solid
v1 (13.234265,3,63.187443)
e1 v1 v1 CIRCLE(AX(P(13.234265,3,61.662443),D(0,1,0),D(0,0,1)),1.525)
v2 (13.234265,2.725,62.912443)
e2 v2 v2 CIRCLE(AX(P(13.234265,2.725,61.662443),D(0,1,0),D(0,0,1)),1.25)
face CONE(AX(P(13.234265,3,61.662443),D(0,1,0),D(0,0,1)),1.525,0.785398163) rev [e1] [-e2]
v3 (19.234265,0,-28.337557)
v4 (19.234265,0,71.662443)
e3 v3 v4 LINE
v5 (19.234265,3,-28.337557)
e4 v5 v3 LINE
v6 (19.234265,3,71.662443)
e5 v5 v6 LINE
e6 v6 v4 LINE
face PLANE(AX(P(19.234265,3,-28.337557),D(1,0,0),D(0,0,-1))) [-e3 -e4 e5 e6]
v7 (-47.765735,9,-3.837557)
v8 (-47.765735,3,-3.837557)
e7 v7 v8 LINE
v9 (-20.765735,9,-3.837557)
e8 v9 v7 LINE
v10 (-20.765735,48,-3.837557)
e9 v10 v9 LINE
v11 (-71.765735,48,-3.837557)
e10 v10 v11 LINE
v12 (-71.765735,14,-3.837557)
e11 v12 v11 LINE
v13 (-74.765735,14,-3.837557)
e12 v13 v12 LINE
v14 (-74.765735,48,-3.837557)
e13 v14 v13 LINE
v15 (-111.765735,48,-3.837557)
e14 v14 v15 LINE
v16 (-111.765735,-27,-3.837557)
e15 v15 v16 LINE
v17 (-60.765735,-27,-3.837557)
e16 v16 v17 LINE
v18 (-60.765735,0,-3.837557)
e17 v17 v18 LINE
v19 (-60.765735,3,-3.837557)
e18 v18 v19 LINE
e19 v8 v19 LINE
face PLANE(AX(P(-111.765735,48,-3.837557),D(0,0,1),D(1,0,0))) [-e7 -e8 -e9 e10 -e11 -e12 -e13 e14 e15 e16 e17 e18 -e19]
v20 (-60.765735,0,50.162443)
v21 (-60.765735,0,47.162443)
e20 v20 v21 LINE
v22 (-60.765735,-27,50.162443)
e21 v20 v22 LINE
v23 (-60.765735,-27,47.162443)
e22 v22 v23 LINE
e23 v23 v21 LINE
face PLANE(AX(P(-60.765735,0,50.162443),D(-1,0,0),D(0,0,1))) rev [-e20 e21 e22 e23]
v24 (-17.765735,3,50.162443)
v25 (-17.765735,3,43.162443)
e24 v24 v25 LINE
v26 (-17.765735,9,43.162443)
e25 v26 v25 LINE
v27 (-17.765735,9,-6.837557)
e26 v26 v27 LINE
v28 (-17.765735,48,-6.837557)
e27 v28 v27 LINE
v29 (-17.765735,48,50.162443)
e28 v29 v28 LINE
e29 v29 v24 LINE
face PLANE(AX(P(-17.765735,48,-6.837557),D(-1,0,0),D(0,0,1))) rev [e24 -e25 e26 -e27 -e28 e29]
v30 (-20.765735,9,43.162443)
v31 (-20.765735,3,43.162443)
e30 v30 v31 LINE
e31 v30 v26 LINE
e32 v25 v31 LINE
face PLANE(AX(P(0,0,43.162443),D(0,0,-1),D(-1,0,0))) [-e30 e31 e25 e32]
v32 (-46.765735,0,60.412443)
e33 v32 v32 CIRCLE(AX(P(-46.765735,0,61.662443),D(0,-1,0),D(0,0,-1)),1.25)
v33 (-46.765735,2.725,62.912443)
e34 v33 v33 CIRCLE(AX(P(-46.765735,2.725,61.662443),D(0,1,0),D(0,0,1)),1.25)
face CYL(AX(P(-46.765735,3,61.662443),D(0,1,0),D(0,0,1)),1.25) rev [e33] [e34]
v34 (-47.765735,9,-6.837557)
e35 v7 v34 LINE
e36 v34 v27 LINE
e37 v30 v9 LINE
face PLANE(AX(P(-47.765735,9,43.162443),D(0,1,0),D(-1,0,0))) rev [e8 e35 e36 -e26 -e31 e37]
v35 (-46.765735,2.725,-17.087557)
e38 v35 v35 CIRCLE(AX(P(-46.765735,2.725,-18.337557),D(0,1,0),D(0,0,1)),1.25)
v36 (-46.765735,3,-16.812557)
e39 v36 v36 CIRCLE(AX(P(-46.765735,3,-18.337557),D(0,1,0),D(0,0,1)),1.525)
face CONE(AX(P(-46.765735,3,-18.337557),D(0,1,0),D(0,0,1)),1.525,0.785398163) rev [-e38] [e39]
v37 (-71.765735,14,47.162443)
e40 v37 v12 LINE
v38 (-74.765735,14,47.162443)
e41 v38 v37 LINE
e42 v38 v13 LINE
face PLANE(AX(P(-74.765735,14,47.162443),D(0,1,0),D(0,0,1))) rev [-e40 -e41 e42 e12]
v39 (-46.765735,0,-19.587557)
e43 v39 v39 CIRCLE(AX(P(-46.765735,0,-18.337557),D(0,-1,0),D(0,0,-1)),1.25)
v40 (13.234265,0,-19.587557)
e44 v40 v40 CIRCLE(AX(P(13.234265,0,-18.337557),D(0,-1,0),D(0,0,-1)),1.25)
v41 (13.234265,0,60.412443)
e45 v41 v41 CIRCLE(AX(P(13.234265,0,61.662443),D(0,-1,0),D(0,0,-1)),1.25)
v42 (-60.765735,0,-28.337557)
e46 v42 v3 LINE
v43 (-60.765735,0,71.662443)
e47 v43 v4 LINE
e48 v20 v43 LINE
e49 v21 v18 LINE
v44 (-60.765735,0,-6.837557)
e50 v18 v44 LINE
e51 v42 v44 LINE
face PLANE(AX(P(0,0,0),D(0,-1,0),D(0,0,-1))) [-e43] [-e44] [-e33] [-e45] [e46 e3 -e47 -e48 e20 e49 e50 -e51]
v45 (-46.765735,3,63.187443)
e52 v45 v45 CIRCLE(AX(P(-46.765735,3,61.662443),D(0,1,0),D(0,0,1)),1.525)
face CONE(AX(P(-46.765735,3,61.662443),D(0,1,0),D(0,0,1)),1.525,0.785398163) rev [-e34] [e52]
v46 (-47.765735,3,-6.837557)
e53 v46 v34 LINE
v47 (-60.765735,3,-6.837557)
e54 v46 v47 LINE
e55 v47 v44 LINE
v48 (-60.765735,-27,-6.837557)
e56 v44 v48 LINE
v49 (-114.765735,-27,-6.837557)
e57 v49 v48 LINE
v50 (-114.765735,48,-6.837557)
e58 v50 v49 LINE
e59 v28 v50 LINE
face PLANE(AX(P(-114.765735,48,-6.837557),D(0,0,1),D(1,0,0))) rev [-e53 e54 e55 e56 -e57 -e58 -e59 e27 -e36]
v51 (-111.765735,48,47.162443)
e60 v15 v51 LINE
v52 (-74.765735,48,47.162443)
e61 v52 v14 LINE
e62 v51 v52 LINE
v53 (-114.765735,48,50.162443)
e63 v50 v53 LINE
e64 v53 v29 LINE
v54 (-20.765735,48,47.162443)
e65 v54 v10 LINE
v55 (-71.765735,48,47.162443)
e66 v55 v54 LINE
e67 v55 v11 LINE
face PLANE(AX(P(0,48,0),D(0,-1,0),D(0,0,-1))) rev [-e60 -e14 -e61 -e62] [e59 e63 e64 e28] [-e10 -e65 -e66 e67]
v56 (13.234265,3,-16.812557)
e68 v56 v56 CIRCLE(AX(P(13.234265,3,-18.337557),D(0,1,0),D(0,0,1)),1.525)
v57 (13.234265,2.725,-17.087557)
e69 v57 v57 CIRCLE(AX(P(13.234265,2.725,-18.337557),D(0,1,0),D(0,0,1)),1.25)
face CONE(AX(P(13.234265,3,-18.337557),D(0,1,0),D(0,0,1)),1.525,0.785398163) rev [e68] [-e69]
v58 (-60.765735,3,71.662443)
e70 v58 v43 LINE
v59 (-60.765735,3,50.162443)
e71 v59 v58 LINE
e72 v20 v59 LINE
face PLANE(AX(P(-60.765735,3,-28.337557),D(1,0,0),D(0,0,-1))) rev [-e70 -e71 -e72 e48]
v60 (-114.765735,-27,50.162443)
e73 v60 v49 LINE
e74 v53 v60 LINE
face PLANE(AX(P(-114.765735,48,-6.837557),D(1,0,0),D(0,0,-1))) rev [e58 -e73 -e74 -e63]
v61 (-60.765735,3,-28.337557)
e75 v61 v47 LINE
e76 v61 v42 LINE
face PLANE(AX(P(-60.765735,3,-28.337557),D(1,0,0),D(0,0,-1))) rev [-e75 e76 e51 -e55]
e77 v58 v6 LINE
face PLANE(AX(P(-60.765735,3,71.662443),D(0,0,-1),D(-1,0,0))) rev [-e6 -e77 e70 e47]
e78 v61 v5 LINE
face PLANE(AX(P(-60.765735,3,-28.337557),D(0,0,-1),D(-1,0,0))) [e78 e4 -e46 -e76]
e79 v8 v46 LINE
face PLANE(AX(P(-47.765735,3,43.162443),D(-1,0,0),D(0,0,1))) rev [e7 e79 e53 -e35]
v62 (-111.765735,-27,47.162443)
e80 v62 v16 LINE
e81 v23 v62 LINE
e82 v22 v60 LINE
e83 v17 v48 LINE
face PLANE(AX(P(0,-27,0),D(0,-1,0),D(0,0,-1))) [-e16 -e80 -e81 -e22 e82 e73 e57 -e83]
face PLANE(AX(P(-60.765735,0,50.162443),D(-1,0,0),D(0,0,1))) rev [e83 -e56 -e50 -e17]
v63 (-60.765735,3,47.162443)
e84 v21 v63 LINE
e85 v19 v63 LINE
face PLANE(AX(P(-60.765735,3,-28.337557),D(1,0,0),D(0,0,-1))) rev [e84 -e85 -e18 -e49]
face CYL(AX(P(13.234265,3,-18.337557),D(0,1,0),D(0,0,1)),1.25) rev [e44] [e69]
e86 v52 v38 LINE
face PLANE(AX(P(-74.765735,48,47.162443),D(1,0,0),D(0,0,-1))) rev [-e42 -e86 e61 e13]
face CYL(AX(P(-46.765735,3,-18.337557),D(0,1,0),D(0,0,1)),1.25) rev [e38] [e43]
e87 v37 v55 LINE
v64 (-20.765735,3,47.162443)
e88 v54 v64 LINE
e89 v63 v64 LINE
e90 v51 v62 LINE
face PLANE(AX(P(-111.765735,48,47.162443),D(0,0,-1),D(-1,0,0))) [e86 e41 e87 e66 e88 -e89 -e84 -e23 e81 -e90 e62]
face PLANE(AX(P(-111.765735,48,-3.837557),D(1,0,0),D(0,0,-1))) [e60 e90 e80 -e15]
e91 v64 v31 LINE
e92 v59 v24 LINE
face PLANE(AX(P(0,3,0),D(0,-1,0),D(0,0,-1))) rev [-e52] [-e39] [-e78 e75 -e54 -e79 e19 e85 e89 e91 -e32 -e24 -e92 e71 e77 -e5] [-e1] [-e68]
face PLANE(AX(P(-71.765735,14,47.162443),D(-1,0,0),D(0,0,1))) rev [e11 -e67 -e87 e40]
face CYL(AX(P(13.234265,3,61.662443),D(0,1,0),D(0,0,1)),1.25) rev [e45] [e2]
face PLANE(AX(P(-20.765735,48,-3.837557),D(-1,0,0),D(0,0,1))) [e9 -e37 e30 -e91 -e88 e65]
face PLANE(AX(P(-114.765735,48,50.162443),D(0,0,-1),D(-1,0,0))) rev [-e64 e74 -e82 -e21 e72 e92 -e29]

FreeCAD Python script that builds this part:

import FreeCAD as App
import Part
import Sketcher
from FreeCAD import Vector
Q = App.Units.Quantity


def add_polygon(sketch, points):
    """Adds a closed chain of lines whose ends are joined by coincident constraints."""
    first, n = sketch.GeometryCount, len(points)
    for a, b in zip(points, points[1:] + points[:1]):
        sketch.addGeometry(Part.LineSegment(App.Vector(*a, 0), App.Vector(*b, 0)), False)
    for i in range(n):
        sketch.addConstraint(Sketcher.Constraint("Coincident", first + i, 2, first + (i + 1) % n, 1))

doc = App.newDocument("Part")
body = doc.addObject("PartDesign::Body", "Body")

sketch1 = body.newObject("Sketcher::SketchObject", "Sketch")
sketch1.AttachmentSupport = (doc.getObject("XZ_Plane"), [""])
sketch1.MapMode = "FlatFace"
add_polygon(sketch1, [(-61, -28), (-61, 72), (19, 72), (19, -28)])
sketch1.addConstraint([
    Sketcher.Constraint("Vertical", 0),
    Sketcher.Constraint("Horizontal", 1),
    Sketcher.Constraint("Vertical", 2),
    Sketcher.Constraint("Horizontal", 3),
    Sketcher.Constraint("DistanceX", 1, 1, 1, 2, Q("80 mm")),
    Sketcher.Constraint("DistanceY", 0, 1, 0, 2, Q("100 mm")),
    Sketcher.Constraint("DistanceX", 0, 2, -1, 1, Q("60.765735 mm")),
    Sketcher.Constraint("DistanceY", -1, 1, 0, 2, Q("71.662443 mm")),
])
pad1 = body.newObject("PartDesign::Pad", "Pad")
pad1.Profile = sketch1
pad1.Length = 3
pad1.Reversed = True

sketch2 = body.newObject("Sketcher::SketchObject", "Sketch001")
sketch2.AttachmentSupport = (doc.getObject("XZ_Plane"), [""])
sketch2.MapMode = "FlatFace"
sketch2.AttachmentOffset = App.Placement(Vector(0, 0, -3), App.Rotation())
add_polygon(sketch2, [(-115, -7), (-115, 50), (-18, 50), (-18, -7)])
add_polygon(sketch2, [(-21, 47), (-112, 47), (-112, -4), (-21, -4)])
sketch2.addConstraint([
    Sketcher.Constraint("Vertical", 0),
    Sketcher.Constraint("Horizontal", 1),
    Sketcher.Constraint("Vertical", 2),
    Sketcher.Constraint("Horizontal", 3),
    Sketcher.Constraint("Horizontal", 4),
    Sketcher.Constraint("Vertical", 5),
    Sketcher.Constraint("Horizontal", 6),
    Sketcher.Constraint("Vertical", 7),
    Sketcher.Constraint("DistanceX", 1, 1, 1, 2, Q("97 mm")),
    Sketcher.Constraint("DistanceX", 4, 2, 4, 1, Q("91 mm")),
    Sketcher.Constraint("DistanceY", 0, 1, 0, 2, Q("57 mm")),
    Sketcher.Constraint("DistanceY", 5, 2, 5, 1, Q("51 mm")),
    Sketcher.Constraint("DistanceX", 0, 2, 4, 2, Q("3 mm")),
    Sketcher.Constraint("DistanceY", 4, 2, 0, 2, Q("3 mm")),
    Sketcher.Constraint("DistanceX", 0, 2, -1, 1, Q("114.765735 mm")),
    Sketcher.Constraint("DistanceY", -1, 1, 0, 2, Q("50.162443 mm")),
])
pad2 = body.newObject("PartDesign::Pad", "Pad001")
pad2.Profile = sketch2
pad2.Length = 45
pad2.Reversed = True

sketch3 = body.newObject("Sketcher::SketchObject", "Sketch002")
sketch3.AttachmentSupport = (doc.getObject("XY_Plane"), [""])
sketch3.MapMode = "FlatFace"
sketch3.AttachmentOffset = App.Placement(Vector(0, 0, -3.837557), App.Rotation())
add_polygon(sketch3, [(-74.8, 48), (-74.8, 14), (-71.8, 14), (-71.8, 48)])
sketch3.addConstraint([
    Sketcher.Constraint("Vertical", 0),
    Sketcher.Constraint("Horizontal", 1),
    Sketcher.Constraint("Vertical", 2),
    Sketcher.Constraint("Horizontal", 3),
    Sketcher.Constraint("DistanceX", 1, 1, 1, 2, Q("3 mm")),
    Sketcher.Constraint("DistanceY", 0, 2, 0, 1, Q("34 mm")),
    Sketcher.Constraint("DistanceY", -1, 1, 0, 2, Q("14 mm")),
    Sketcher.Constraint("DistanceX", 0, 2, -1, 1, Q("74.765735 mm")),
])
pad3 = body.newObject("PartDesign::Pad", "Pad002")
pad3.Profile = sketch3
pad3.Length = 51

sketch4 = body.newObject("Sketcher::SketchObject", "Sketch003")
sketch4.AttachmentSupport = (doc.getObject("XY_Plane"), [""])
sketch4.MapMode = "FlatFace"
sketch4.AttachmentOffset = App.Placement(Vector(0, 0, -6.837557), App.Rotation())
add_polygon(sketch4, [(-18, 9), (-18, 3), (-48, 3), (-48, 9)])
sketch4.addConstraint([
    Sketcher.Constraint("Vertical", 0),
    Sketcher.Constraint("Horizontal", 1),
    Sketcher.Constraint("Vertical", 2),
    Sketcher.Constraint("Horizontal", 3),
    Sketcher.Constraint("DistanceX", 1, 2, 1, 1, Q("30 mm")),
    Sketcher.Constraint("DistanceY", 0, 2, 0, 1, Q("6 mm")),
    Sketcher.Constraint("DistanceY", -1, 1, 0, 2, Q("3 mm")),
    Sketcher.Constraint("DistanceX", 0, 2, -1, 1, Q("17.765735 mm")),
])
pocket1 = body.newObject("PartDesign::Pocket", "Pocket")
pocket1.Profile = sketch4
pocket1.Length = 50
pocket1.Reversed = True

sketch5 = body.newObject("Sketcher::SketchObject", "Sketch004")
sketch5.AttachmentSupport = (doc.getObject("XZ_Plane"), [""])
sketch5.MapMode = "FlatFace"
sketch5.AttachmentOffset = App.Placement(Vector(0, 0, -3), App.Rotation())
add_polygon(sketch5, [(-115, 50), (-115, -7), (-58, -7), (-58, 50)])
add_polygon(sketch5, [(-61, -4), (-112, -4), (-112, 47), (-61, 47)])
sketch5.addConstraint([
    Sketcher.Constraint("Vertical", 0),
    Sketcher.Constraint("Horizontal", 1),
    Sketcher.Constraint("Vertical", 2),
    Sketcher.Constraint("Horizontal", 3),
    Sketcher.Constraint("Horizontal", 4),
    Sketcher.Constraint("Vertical", 5),
    Sketcher.Constraint("Horizontal", 6),
    Sketcher.Constraint("Vertical", 7),
    Sketcher.Constraint("Equal", 3, 0),
    Sketcher.Constraint("Equal", 6, 5),
    Sketcher.Constraint("DistanceX", 1, 1, 1, 2, Q("57 mm")),
    Sketcher.Constraint("DistanceX", 4, 2, 4, 1, Q("51 mm")),
    Sketcher.Constraint("DistanceX", 0, 2, 4, 2, Q("3 mm")),
    Sketcher.Constraint("DistanceY", 0, 2, 4, 2, Q("3 mm")),
    Sketcher.Constraint("DistanceX", 0, 2, -1, 1, Q("114.765735 mm")),
    Sketcher.Constraint("DistanceY", 0, 2, -1, 1, Q("6.837557 mm")),
])
pad4 = body.newObject("PartDesign::Pad", "Pad003")
pad4.Profile = sketch5
pad4.Length = 30

sketch6 = body.newObject("Sketcher::SketchObject", "Sketch005")
sketch6.AttachmentSupport = (doc.getObject("XZ_Plane"), [""])
sketch6.MapMode = "FlatFace"
sketch6.AttachmentOffset = App.Placement(Vector(0, 0, -3), App.Rotation())
sketch6.addGeometry([
    Part.Circle(Vector(-46.8, -18.3, 0), Vector(0, 0, 1), 1.2),
    Part.Circle(Vector(13.2, -18.3, 0), Vector(0, 0, 1), 1.2),
    Part.Circle(Vector(13.2, 61.7, 0), Vector(0, 0, 1), 1.2),
    Part.Circle(Vector(-46.8, 61.7, 0), Vector(0, 0, 1), 1.2),
], False)
sketch6.addConstraint([
    Sketcher.Constraint("Equal", 0, 1),
    Sketcher.Constraint("Equal", 1, 2),
    Sketcher.Constraint("Equal", 2, 3),
    Sketcher.Constraint("Horizontal", 0, 3, 1, 3),
    Sketcher.Constraint("Horizontal", 2, 3, 3, 3),
    Sketcher.Constraint("Vertical", 1, 3, 2, 3),
    Sketcher.Constraint("Vertical", 0, 3, 3, 3),
    Sketcher.Constraint("Diameter", 0, Q("2.5 mm")),
    Sketcher.Constraint("DistanceX", 0, 3, 1, 3, Q("60 mm")),
    Sketcher.Constraint("DistanceY", 1, 3, 2, 3, Q("80 mm")),
    Sketcher.Constraint("DistanceX", 0, 3, -1, 1, Q("46.765735 mm")),
    Sketcher.Constraint("DistanceY", 0, 3, -1, 1, Q("18.337557 mm")),
])
doc.recompute()
hole = body.newObject("PartDesign::Hole", "Hole")
hole.Profile = sketch6
hole.ThreadType = "None"
hole.Diameter = 2.5
hole.DepthType = "ThroughAll"
hole.HoleCutType = "Countersink"
hole.HoleCutDiameter = 3.05
hole.HoleCutCountersinkAngle = 90
hole.Reversed = True

sketch7 = body.newObject("Sketcher::SketchObject", "Sketch006")
sketch7.AttachmentSupport = (doc.getObject("XZ_Plane"), [""])
sketch7.MapMode = "FlatFace"
sketch7.AttachmentOffset = App.Placement(Vector(0, 0, 27), App.Rotation())
add_polygon(sketch7, [(-57.8, -6.8), (-57.8, 50.2), (-60.8, 50.2), (-60.8, -6.8)])
sketch7.addConstraint([
    Sketcher.Constraint("Vertical", 0),
    Sketcher.Constraint("Horizontal", 1),
    Sketcher.Constraint("Vertical", 2),
    Sketcher.Constraint("Horizontal", 3),
    Sketcher.Constraint("DistanceX", 1, 2, 1, 1, Q("3 mm")),
    Sketcher.Constraint("DistanceY", 0, 1, 0, 2, Q("57 mm")),
    Sketcher.Constraint("DistanceX", 0, 2, -1, 1, Q("57.765735 mm")),
    Sketcher.Constraint("DistanceY", -1, 1, 0, 2, Q("50.162443 mm")),
])
pocket2 = body.newObject("PartDesign::Pocket", "Pocket001")
pocket2.Profile = sketch7
pocket2.Length = 27

doc.recompute()
